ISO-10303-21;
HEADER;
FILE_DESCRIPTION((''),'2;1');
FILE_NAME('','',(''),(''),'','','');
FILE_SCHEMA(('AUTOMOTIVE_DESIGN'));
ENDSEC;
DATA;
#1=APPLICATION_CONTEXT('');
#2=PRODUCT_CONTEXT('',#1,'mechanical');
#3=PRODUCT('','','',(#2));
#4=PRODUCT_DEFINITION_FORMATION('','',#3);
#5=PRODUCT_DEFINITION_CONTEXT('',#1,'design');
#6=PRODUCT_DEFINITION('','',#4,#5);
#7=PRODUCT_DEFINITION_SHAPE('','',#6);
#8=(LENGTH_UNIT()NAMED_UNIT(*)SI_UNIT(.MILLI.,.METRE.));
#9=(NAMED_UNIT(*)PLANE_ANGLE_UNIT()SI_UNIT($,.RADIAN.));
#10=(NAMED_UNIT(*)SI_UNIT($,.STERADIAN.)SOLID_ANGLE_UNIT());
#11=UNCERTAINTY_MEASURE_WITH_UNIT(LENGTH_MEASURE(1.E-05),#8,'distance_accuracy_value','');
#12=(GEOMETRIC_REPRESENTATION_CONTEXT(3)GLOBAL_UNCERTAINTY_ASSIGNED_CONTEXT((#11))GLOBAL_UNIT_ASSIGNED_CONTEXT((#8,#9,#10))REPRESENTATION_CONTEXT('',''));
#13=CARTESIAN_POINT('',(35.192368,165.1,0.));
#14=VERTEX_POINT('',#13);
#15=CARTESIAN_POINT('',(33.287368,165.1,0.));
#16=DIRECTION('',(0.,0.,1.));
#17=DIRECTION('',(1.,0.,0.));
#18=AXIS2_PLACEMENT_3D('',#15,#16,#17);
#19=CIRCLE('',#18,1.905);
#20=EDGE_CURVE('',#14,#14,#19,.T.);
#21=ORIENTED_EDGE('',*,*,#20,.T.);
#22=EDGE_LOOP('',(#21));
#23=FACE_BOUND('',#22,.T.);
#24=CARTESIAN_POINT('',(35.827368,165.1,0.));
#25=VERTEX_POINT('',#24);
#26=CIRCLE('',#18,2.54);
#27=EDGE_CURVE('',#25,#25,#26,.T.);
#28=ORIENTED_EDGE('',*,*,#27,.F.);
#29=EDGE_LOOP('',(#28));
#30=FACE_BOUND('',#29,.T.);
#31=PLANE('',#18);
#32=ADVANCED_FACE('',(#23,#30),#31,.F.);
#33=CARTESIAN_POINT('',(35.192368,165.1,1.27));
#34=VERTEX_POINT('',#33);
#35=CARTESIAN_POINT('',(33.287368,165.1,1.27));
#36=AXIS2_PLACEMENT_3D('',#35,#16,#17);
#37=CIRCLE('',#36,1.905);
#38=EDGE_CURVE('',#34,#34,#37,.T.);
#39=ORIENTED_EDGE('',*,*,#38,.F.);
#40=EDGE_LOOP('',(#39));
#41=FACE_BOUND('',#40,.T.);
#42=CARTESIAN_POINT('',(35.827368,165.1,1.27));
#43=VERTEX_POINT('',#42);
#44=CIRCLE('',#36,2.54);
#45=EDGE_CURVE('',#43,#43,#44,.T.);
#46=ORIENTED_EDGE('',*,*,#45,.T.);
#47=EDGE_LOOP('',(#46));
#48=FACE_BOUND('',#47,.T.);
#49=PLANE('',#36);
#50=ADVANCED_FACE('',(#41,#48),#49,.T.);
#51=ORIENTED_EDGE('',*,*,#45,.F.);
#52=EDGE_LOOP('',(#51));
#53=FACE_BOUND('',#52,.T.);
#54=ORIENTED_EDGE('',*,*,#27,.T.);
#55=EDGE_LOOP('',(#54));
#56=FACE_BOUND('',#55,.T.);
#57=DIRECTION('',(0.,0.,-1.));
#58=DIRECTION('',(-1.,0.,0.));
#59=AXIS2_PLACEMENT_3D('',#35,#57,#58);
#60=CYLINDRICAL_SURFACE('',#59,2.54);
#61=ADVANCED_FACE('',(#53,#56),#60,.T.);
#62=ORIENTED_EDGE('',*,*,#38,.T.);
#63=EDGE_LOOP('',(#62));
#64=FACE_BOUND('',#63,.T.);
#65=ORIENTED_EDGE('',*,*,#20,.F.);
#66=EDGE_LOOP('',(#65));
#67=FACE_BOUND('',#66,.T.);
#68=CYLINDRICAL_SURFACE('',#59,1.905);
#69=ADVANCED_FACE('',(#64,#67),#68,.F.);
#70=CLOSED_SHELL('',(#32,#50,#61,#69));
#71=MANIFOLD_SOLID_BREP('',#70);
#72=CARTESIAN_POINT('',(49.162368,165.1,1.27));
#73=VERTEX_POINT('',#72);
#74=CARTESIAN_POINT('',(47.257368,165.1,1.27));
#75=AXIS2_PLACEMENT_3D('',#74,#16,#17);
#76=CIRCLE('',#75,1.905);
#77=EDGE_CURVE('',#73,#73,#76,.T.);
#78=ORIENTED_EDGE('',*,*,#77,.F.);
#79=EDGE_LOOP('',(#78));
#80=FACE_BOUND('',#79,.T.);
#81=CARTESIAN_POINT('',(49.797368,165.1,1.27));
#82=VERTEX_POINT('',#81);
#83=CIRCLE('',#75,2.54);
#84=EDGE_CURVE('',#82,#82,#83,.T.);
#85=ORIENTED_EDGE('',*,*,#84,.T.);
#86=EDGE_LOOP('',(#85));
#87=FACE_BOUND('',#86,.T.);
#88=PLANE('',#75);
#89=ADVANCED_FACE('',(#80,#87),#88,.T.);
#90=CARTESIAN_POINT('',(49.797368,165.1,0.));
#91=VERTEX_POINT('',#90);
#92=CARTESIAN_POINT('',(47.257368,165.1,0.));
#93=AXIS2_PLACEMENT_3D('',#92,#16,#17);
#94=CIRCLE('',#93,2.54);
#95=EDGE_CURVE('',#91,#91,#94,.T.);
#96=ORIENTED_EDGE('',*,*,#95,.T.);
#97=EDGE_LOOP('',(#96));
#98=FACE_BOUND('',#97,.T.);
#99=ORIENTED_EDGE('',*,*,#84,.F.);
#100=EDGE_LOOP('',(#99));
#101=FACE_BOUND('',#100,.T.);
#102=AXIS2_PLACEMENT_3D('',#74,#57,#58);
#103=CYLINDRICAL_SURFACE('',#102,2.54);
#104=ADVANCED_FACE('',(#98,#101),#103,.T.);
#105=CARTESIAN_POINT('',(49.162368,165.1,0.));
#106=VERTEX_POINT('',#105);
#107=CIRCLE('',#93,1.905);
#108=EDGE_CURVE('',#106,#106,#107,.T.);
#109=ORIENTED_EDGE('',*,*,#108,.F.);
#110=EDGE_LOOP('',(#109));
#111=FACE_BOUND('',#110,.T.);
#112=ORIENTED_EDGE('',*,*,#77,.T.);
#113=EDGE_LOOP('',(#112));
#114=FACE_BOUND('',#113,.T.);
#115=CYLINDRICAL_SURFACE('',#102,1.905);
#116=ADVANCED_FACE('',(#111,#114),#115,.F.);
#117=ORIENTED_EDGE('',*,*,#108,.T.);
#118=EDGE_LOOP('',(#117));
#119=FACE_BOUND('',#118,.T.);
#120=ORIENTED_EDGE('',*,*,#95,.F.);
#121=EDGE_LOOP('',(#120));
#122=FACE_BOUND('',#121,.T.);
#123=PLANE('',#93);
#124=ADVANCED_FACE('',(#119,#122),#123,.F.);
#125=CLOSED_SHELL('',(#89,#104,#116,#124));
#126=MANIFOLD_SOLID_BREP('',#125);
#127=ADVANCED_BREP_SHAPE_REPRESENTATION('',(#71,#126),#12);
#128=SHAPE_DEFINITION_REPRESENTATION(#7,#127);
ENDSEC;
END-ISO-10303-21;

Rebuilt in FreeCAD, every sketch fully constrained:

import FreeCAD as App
import Part
import Sketcher
from FreeCAD import Vector
Q = App.Units.Quantity

doc = App.newDocument("Part")
body = doc.addObject("PartDesign::Body", "Body")

# Sketch on XY plane
sketch1 = body.newObject("Sketcher::SketchObject", "Sketch")
sketch1.AttachmentSupport = (doc.getObject("XY_Plane"), [""])
sketch1.MapMode = "FlatFace"
sketch1.addGeometry([
    Part.Circle(Vector(33.287368, 165.1, 0), Vector(0, 0, 1), 2.54),
    Part.Circle(Vector(33.287368, 165.1, 0), Vector(0, 0, 1), 1.905),
], False)
sketch1.addConstraint([
    Sketcher.Constraint("Coincident", 1, 3, 0, 3),
    Sketcher.Constraint("Diameter", 0, Q("0.2 in")),
    Sketcher.Constraint("Diameter", 1, Q("0.15 in")),
    Sketcher.Constraint("DistanceY", -1, 1, 0, 3, Q("6.5 in")),
    Sketcher.Constraint("DistanceX", -1, 1, 0, 3, Q("33.287368 mm")),
])
pad1 = body.newObject("PartDesign::Pad", "Pad")
pad1.Profile = sketch1
pad1.Length = Q("0.05 in")
body2 = doc.addObject("PartDesign::Body", "Body001")

# Sketch on XY plane
sketch2 = body2.newObject("Sketcher::SketchObject", "Sketch001")
sketch2.AttachmentSupport = (doc.getObject("XY_Plane001"), [""])
sketch2.MapMode = "FlatFace"
sketch2.addGeometry([
    Part.Circle(Vector(47.257368, 165.1, 0), Vector(0, 0, 1), 2.54),
    Part.Circle(Vector(47.257368, 165.1, 0), Vector(0, 0, 1), 1.905),
], False)
sketch2.addConstraint([
    Sketcher.Constraint("Coincident", 1, 3, 0, 3),
    Sketcher.Constraint("Diameter", 0, Q("0.2 in")),
    Sketcher.Constraint("Diameter", 1, Q("0.15 in")),
    Sketcher.Constraint("DistanceY", -1, 1, 0, 3, Q("6.5 in")),
    Sketcher.Constraint("DistanceX", -1, 1, 0, 3, Q("47.257368 mm")),
])
pad2 = body2.newObject("PartDesign::Pad", "Pad001")
pad2.Profile = sketch2
pad2.Length = Q("0.05 in")

doc.recompute()
